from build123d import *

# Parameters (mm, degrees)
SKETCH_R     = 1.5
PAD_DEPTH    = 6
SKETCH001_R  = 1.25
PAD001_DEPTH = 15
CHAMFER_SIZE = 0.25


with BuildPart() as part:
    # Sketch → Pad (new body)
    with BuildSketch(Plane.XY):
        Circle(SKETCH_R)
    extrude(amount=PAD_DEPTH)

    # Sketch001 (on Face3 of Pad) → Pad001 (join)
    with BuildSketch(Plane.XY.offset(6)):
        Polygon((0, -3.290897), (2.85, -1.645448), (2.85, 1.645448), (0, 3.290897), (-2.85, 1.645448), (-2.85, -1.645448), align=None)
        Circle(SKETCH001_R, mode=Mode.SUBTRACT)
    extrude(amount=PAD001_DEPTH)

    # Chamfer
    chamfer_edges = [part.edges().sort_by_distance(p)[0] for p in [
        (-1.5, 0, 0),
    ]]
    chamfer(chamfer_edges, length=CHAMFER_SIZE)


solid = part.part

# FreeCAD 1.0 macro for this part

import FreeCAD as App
import Part
import Sketcher
from FreeCAD import Vector
Q = App.Units.Quantity


def edges_at(feature, points):
    """Names of the edges that pass closest to the given points."""
    edges = feature.Shape.Edges
    near = lambda p: min(range(len(edges)), key=lambda i: edges[i].distToShape(Part.Vertex(*p))[0])
    return sorted({f"Edge{near(p) + 1}" for p in points})


def add_polygon(sketch, points):
    """Adds a closed chain of lines whose ends are joined by coincident constraints."""
    first, n = sketch.GeometryCount, len(points)
    for a, b in zip(points, points[1:] + points[:1]):
        sketch.addGeometry(Part.LineSegment(App.Vector(*a, 0), App.Vector(*b, 0)), False)
    for i in range(n):
        sketch.addConstraint(Sketcher.Constraint("Coincident", first + i, 2, first + (i + 1) % n, 1))

doc = App.newDocument("Part")
params = doc.addObject("Spreadsheet::Sheet", "Params")
for row, (alias, value) in enumerate([
    ("sketch1_diameter", "3 mm"),
    ("pad1_length", "6 mm"),
    ("sketch2_diameter", "2.5 mm"),
    ("pad2_length", "15 mm"),
    ("chamfer_size", "0.25 mm"),
], start=1):
    params.set(f"A{row}", alias)
    params.set(f"B{row}", "=" + value)
    params.setAlias(f"B{row}", alias)

body = doc.addObject("PartDesign::Body", "Body")

# Sketch on XY plane
sketch1 = body.newObject("Sketcher::SketchObject", "Sketch")
sketch1.AttachmentSupport = (doc.getObject("XY_Plane"), [""])
sketch1.MapMode = "FlatFace"
sketch1.addGeometry(Part.Circle(Vector(0, 0, 0), Vector(0, 0, 1), 1.5), False)
sketch1.addConstraint(Sketcher.Constraint("Coincident", 0, 3, -1, 1))
sketch1.addConstraint(Sketcher.Constraint("Diameter", 0, Q("3 mm")))
sketch1.setExpression("Constraints[1]", "Params.sketch1_diameter")
pad1 = body.newObject("PartDesign::Pad", "Pad")
pad1.Profile = sketch1
pad1.setExpression("Length", "Params.pad1_length")

# Sketch on XY plane
sketch2 = body.newObject("Sketcher::SketchObject", "Sketch001")
sketch2.AttachmentSupport = (doc.getObject("XY_Plane"), [""])
sketch2.MapMode = "FlatFace"
sketch2.AttachmentOffset = App.Placement(Vector(0, 0, 6), App.Rotation())
add_polygon(sketch2, [(0, -3.3), (2.9, -1.6), (2.9, 1.6), (0, 3.3), (-2.9, 1.6), (-2.9, -1.6)])  # lines 0-5
sketch2.addGeometry(Part.Circle(Vector(0, 0, 0), Vector(0, 0, 1), 1.2), False)  # 6
sketch2.addConstraint(Sketcher.Constraint("Vertical", 1))
sketch2.addConstraint(Sketcher.Constraint("Vertical", 4))
sketch2.addConstraint(Sketcher.Constraint("Coincident", 6, 3, -1, 1))
sketch2.addConstraint(Sketcher.Constraint("Symmetric", 0, 2, 3, 2, -1, 1))
sketch2.addConstraint(Sketcher.Constraint("Symmetric", 2, 2, 5, 2, -1, 1))
sketch2.addConstraint(Sketcher.Constraint("PointOnObject", 2, 2, -2))
sketch2.addConstraint(Sketcher.Constraint("Parallel", 2, 5))
sketch2.addConstraint(Sketcher.Constraint("Horizontal", 1, 2, 3, 2))
sketch2.addConstraint(Sketcher.Constraint("Diameter", 6, Q("2.5 mm")))
sketch2.addConstraint(Sketcher.Constraint("Angle", 0, Q("30.000011 deg")))
sketch2.addConstraint(Sketcher.Constraint("DistanceX", 3, 2, 1, 2, Q("5.7 mm")))
sketch2.addConstraint(Sketcher.Constraint("DistanceY", 1, 1, 1, 2, Q("3.290896 mm")))
sketch2.setExpression("Constraints[14]", "Params.sketch2_diameter")
pad2 = body.newObject("PartDesign::Pad", "Pad001")
pad2.Profile = sketch2
pad2.setExpression("Length", "Params.pad2_length")
doc.recompute()

chamfer = body.newObject("PartDesign::Chamfer", "Chamfer")
chamfer.Base = (pad2, edges_at(pad2, [(-1.5, 0, 0)]))
chamfer.setExpression("Size", "Params.chamfer_size")

doc.recompute()
